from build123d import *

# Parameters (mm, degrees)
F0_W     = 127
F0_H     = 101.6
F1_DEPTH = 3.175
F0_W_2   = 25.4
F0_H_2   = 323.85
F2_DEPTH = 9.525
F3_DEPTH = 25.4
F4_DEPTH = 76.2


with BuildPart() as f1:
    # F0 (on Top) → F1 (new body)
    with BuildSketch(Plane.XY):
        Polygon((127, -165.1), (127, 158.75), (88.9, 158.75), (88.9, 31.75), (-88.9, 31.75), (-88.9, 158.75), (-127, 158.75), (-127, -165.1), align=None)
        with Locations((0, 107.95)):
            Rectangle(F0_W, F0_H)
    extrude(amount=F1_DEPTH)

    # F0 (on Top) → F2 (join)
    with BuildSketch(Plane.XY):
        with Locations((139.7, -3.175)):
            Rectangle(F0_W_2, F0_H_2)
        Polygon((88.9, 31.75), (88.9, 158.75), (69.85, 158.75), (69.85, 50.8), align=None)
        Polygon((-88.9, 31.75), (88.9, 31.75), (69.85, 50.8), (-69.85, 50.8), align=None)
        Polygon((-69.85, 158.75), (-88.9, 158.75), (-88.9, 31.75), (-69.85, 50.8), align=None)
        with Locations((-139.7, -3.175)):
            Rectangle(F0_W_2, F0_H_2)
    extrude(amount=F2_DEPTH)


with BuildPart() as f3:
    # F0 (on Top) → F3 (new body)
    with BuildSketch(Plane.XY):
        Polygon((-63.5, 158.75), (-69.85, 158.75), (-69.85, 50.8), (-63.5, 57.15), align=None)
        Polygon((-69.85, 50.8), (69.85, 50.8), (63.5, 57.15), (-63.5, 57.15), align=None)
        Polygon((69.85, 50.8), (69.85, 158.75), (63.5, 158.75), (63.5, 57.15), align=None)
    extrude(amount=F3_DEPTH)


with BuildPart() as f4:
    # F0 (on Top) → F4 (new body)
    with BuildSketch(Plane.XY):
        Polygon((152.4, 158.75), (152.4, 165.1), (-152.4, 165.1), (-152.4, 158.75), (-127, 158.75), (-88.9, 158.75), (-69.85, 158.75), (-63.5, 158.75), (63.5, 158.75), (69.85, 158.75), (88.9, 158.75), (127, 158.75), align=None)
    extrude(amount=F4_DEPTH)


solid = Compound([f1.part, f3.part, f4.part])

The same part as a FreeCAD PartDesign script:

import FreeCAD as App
import Part
import Sketcher
from FreeCAD import Vector
Q = App.Units.Quantity


def add_polygon(sketch, points):
    """Adds a closed chain of lines whose ends are joined by coincident constraints."""
    first, n = sketch.GeometryCount, len(points)
    for a, b in zip(points, points[1:] + points[:1]):
        sketch.addGeometry(Part.LineSegment(App.Vector(*a, 0), App.Vector(*b, 0)), False)
    for i in range(n):
        sketch.addConstraint(Sketcher.Constraint("Coincident", first + i, 2, first + (i + 1) % n, 1))

doc = App.newDocument("Part")
body = doc.addObject("PartDesign::Body", "Body")
body.AllowCompound = True

# Sketch on XY plane
sketch1 = body.newObject("Sketcher::SketchObject", "Sketch")
sketch1.AttachmentSupport = (doc.getObject("XY_Plane"), [""])
sketch1.MapMode = "FlatFace"
add_polygon(sketch1, [(127, -165.1), (127, 158.75), (88.9, 158.75), (88.9, 31.75), (-88.9, 31.75), (-88.9, 158.75), (-127, 158.75), (-127, -165.1)])  # lines 0-7
add_polygon(sketch1, [(-63.5, 158.75), (-63.5, 57.15), (63.5, 57.15), (63.5, 158.75)])  # lines 8-11
sketch1.addConstraint([
    Sketcher.Constraint("Vertical", 0),
    Sketcher.Constraint("Horizontal", 1),
    Sketcher.Constraint("Vertical", 2),
    Sketcher.Constraint("Horizontal", 3),
    Sketcher.Constraint("Vertical", 4),
    Sketcher.Constraint("Horizontal", 5),
    Sketcher.Constraint("Vertical", 6),
    Sketcher.Constraint("Horizontal", 7),
    Sketcher.Constraint("Vertical", 8),
    Sketcher.Constraint("Horizontal", 9),
    Sketcher.Constraint("Vertical", 10),
    Sketcher.Constraint("Horizontal", 11),
    Sketcher.Constraint("Symmetric", 1, 2, 4, 2, -2),
    Sketcher.Constraint("Horizontal", 5, 2, 10, 2),
    Sketcher.Constraint("Equal", 1, 5),
    Sketcher.Constraint("Equal", 11, 2),
    Sketcher.Constraint("DistanceX", 3, 2, 3, 1, Q("7 in")),
    Sketcher.Constraint("DistanceX", 7, 1, 7, 2, Q("10 in")),
    Sketcher.Constraint("DistanceX", 9, 1, 9, 2, Q("5 in")),
    Sketcher.Constraint("DistanceY", 8, 2, 8, 1, Q("4 in")),
    Sketcher.Constraint("DistanceX", 3, 2, 8, 2, Q("1 in")),
    Sketcher.Constraint("DistanceY", 0, 1, 0, 2, Q("12.75 in")),
    Sketcher.Constraint("DistanceY", 6, 2, -1, 1, Q("6.5 in")),
])
pad1 = body.newObject("PartDesign::Pad", "Pad")
pad1.Profile = sketch1
pad1.Length = Q("0.125 in")

# Sketch on XY plane
sketch2 = body.newObject("Sketcher::SketchObject", "Sketch001")
sketch2.AttachmentSupport = (doc.getObject("XY_Plane"), [""])
sketch2.MapMode = "FlatFace"
add_polygon(sketch2, [(127, 158.75), (127, -165.1), (152.4, -165.1), (152.4, 158.75)])  # lines 0-3
add_polygon(sketch2, [(88.9, 31.75), (88.9, 158.75), (69.85, 158.75), (69.85, 50.8), (-69.85, 50.8), (-69.85, 158.75), (-88.9, 158.75), (-88.9, 31.75)])  # lines 4-11
add_polygon(sketch2, [(-152.4, 158.75), (-152.4, -165.1), (-127, -165.1), (-127, 158.75)])  # lines 12-15
sketch2.addConstraint([
    Sketcher.Constraint("Vertical", 0),
    Sketcher.Constraint("Horizontal", 1),
    Sketcher.Constraint("Vertical", 2),
    Sketcher.Constraint("Horizontal", 3),
    Sketcher.Constraint("Vertical", 4),
    Sketcher.Constraint("Horizontal", 5),
    Sketcher.Constraint("Vertical", 6),
    Sketcher.Constraint("Horizontal", 7),
    Sketcher.Constraint("Vertical", 8),
    Sketcher.Constraint("Horizontal", 9),
    Sketcher.Constraint("Vertical", 10),
    Sketcher.Constraint("Horizontal", 11),
    Sketcher.Constraint("Vertical", 12),
    Sketcher.Constraint("Horizontal", 13),
    Sketcher.Constraint("Vertical", 14),
    Sketcher.Constraint("Horizontal", 15),
    Sketcher.Constraint("Symmetric", 5, 2, 8, 2, -2),
    Sketcher.Constraint("Symmetric", 1, 2, 12, 2, -2),
    Sketcher.Constraint("Symmetric", 3, 2, 14, 2, -2),
    Sketcher.Constraint("Horizontal", 3, 2, 4, 2),
    Sketcher.Constraint("Equal", 5, 9),
    Sketcher.Constraint("DistanceX", 1, 1, 1, 2, Q("1 in")),
    Sketcher.Constraint("DistanceX", 11, 1, 11, 2, Q("7 in")),
    Sketcher.Constraint("DistanceY", 4, 1, 4, 2, Q("5 in")),
    Sketcher.Constraint("DistanceX", 7, 2, 7, 1, Q("5.5 in")),
    Sketcher.Constraint("DistanceX", -1, 1, 0, 2, Q("5 in")),
    Sketcher.Constraint("DistanceY", -1, 1, 6, 2, Q("2 in")),
    Sketcher.Constraint("DistanceY", 0, 2, 0, 1, Q("12.75 in")),
    Sketcher.Constraint("DistanceY", 6, 2, 6, 1, Q("4.25 in")),
])
pad2 = body.newObject("PartDesign::Pad", "Pad001")
pad2.Profile = sketch2
pad2.Length = Q("0.375 in")
body2 = doc.addObject("PartDesign::Body", "Body001")

# Sketch on XY plane
sketch3 = body2.newObject("Sketcher::SketchObject", "Sketch002")
sketch3.AttachmentSupport = (doc.getObject("XY_Plane001"), [""])
sketch3.MapMode = "FlatFace"
add_polygon(sketch3, [(-63.5, 158.75), (-69.85, 158.75), (-69.85, 50.8), (69.85, 50.8), (69.85, 158.75), (63.5, 158.75), (63.5, 57.15), (-63.5, 57.15)])  # lines 0-7
sketch3.addConstraint([
    Sketcher.Constraint("Horizontal", 0),
    Sketcher.Constraint("Vertical", 1),
    Sketcher.Constraint("Horizontal", 2),
    Sketcher.Constraint("Vertical", 3),
    Sketcher.Constraint("Horizontal", 4),
    Sketcher.Constraint("Vertical", 5),
    Sketcher.Constraint("Horizontal", 6),
    Sketcher.Constraint("Vertical", 7),
    Sketcher.Constraint("Symmetric", 0, 2, 3, 2, -2),
    Sketcher.Constraint("Equal", 0, 4),
    Sketcher.Constraint("DistanceX", 6, 2, 6, 1, Q("5 in")),
    Sketcher.Constraint("DistanceY", 5, 2, 5, 1, Q("4 in")),
    Sketcher.Constraint("DistanceX", 2, 1, 2, 2, Q("5.5 in")),
    Sketcher.Constraint("DistanceY", -1, 1, 1, 2, Q("2 in")),
    Sketcher.Constraint("DistanceY", 1, 2, 1, 1, Q("4.25 in")),
])
pad3 = body2.newObject("PartDesign::Pad", "Pad002")
pad3.Profile = sketch3
pad3.Length = Q("1 in")
body3 = doc.addObject("PartDesign::Body", "Body002")

# Sketch on XY plane
sketch4 = body3.newObject("Sketcher::SketchObject", "Sketch003")
sketch4.AttachmentSupport = (doc.getObject("XY_Plane002"), [""])
sketch4.MapMode = "FlatFace"
add_polygon(sketch4, [(152.4, 158.75), (152.4, 165.1), (-152.4, 165.1), (-152.4, 158.75)])  # lines 0-3
sketch4.addConstraint([
    Sketcher.Constraint("Vertical", 0),
    Sketcher.Constraint("Horizontal", 1),
    Sketcher.Constraint("Vertical", 2),
    Sketcher.Constraint("Horizontal", 3),
    Sketcher.Constraint("DistanceX", 1, 2, 1, 1, Q("12 in")),
    Sketcher.Constraint("DistanceX", -1, 1, 0, 2, Q("6 in")),
    Sketcher.Constraint("DistanceY", 0, 1, 0, 2, Q("0.25 in")),
    Sketcher.Constraint("DistanceY", -1, 1, 0, 2, Q("6.5 in")),
])
pad4 = body3.newObject("PartDesign::Pad", "Pad003")
pad4.Profile = sketch4
pad4.Length = Q("3 in")

doc.recompute()
